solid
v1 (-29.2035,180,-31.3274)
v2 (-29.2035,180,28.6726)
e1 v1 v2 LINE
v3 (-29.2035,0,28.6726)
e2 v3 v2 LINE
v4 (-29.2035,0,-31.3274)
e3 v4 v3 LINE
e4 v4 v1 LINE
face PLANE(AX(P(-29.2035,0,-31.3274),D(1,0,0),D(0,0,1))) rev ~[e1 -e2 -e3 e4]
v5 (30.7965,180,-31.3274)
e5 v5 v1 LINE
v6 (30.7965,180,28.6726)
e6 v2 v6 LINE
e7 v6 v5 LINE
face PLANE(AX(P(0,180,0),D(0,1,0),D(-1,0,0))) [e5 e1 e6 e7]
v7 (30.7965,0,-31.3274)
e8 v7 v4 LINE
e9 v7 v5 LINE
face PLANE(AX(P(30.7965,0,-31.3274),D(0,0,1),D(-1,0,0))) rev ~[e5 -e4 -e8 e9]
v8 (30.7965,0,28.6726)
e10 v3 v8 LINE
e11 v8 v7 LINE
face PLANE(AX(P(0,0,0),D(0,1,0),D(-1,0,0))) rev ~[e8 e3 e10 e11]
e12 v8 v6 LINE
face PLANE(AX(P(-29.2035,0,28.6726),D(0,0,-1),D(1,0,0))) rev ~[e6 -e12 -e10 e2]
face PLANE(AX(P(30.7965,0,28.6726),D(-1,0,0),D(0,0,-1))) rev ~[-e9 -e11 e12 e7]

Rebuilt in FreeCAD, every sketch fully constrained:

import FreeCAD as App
import Part
import Sketcher
from FreeCAD import Vector
Q = App.Units.Quantity


def add_polygon(sketch, points):
    """Adds a closed chain of lines whose ends are joined by coincident constraints."""
    first, n = sketch.GeometryCount, len(points)
    for a, b in zip(points, points[1:] + points[:1]):
        sketch.addGeometry(Part.LineSegment(App.Vector(*a, 0), App.Vector(*b, 0)), False)
    for i in range(n):
        sketch.addConstraint(Sketcher.Constraint("Coincident", first + i, 2, first + (i + 1) % n, 1))

doc = App.newDocument("Part")
params = doc.addObject("Spreadsheet::Sheet", "Params")
for row, (alias, value) in enumerate([
    ("sketch1_width", "60 mm"),
    ("pad1_length", "180 mm"),
], start=1):
    params.set(f"A{row}", alias)
    params.set(f"B{row}", "=" + value)
    params.setAlias(f"B{row}", alias)

body = doc.addObject("PartDesign::Body", "Body")

# Sketch on XZ plane
sketch1 = body.newObject("Sketcher::SketchObject", "Sketch")
sketch1.AttachmentSupport = (doc.getObject("XZ_Plane"), [""])
sketch1.MapMode = "FlatFace"
add_polygon(sketch1, [(-29, -31), (-29, 29), (31, 29), (31, -31)])  # lines 0-3
sketch1.addConstraint(Sketcher.Constraint("Vertical", 0))
sketch1.addConstraint(Sketcher.Constraint("Horizontal", 1))
sketch1.addConstraint(Sketcher.Constraint("Vertical", 2))
sketch1.addConstraint(Sketcher.Constraint("Horizontal", 3))
sketch1.addConstraint(Sketcher.Constraint("Equal", 3, 0))
sketch1.addConstraint(Sketcher.Constraint("DistanceX", 1, 1, 1, 2, Q("60 mm")))
sketch1.addConstraint(Sketcher.Constraint("DistanceX", 0, 2, -1, 1, Q("29.2035 mm")))
sketch1.addConstraint(Sketcher.Constraint("DistanceY", -1, 1, 0, 2, Q("28.6726 mm")))
sketch1.setExpression("Constraints[9]", "Params.sketch1_width")
pad1 = body.newObject("PartDesign::Pad", "Pad")
pad1.Profile = sketch1
pad1.setExpression("Length", "Params.pad1_length")
pad1.Reversed = True

doc.recompute()
